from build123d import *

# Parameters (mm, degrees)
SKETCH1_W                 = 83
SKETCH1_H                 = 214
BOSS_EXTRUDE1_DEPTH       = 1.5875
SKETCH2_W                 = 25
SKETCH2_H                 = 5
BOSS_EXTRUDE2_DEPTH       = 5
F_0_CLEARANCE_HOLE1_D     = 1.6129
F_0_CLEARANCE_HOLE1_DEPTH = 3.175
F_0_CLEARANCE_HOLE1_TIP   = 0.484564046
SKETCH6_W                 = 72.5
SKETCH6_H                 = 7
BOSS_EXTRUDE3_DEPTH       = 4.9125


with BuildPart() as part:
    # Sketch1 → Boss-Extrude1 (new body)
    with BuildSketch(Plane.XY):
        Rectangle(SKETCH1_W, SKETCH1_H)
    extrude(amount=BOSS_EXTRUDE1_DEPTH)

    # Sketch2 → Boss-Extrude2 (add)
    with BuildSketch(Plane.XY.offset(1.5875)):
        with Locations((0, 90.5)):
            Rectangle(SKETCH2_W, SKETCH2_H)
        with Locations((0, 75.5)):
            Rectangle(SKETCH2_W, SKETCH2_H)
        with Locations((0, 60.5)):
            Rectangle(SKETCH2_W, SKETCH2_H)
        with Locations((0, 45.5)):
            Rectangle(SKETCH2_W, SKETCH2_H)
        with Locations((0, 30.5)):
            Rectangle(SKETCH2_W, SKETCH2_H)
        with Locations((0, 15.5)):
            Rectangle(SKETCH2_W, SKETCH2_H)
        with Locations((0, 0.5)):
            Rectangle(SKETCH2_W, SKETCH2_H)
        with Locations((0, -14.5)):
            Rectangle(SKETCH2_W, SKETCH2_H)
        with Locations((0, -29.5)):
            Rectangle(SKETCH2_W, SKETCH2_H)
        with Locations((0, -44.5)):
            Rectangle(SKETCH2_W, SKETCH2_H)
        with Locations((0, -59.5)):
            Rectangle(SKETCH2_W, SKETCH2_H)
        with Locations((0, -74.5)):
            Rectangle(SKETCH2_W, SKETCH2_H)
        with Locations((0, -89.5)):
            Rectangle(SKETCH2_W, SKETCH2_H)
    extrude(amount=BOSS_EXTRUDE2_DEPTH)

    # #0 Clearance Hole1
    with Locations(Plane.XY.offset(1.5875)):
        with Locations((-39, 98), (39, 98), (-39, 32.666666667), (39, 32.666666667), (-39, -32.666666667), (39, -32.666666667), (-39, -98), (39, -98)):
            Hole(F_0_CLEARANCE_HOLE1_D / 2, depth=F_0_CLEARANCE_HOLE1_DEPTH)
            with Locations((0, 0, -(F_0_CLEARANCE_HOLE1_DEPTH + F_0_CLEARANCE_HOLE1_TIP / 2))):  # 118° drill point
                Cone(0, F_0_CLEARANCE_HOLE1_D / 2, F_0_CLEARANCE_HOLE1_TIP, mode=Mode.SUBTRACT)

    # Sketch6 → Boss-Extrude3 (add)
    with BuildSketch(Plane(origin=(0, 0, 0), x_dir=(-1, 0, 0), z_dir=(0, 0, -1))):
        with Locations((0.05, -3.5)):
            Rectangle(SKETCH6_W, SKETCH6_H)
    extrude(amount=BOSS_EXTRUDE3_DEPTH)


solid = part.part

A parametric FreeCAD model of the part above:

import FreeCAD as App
import Part
import Sketcher
Q = App.Units.Quantity


def add_polygon(sketch, points):
    """Adds a closed chain of lines whose ends are joined by coincident constraints."""
    first, n = sketch.GeometryCount, len(points)
    for a, b in zip(points, points[1:] + points[:1]):
        sketch.addGeometry(Part.LineSegment(App.Vector(*a, 0), App.Vector(*b, 0)), False)
    for i in range(n):
        sketch.addConstraint(Sketcher.Constraint("Coincident", first + i, 2, first + (i + 1) % n, 1))

doc = App.newDocument("Part")
params = doc.addObject("Spreadsheet::Sheet", "Params")
for row, (alias, value) in enumerate([
    ("sketch1_width", "83 mm"),
    ("sketch1_height", "214 mm"),
    ("pad1_length", "1.5875 mm"),
    ("sketch2_width", "25 mm"),
    ("sketch2_height", "5 mm"),
    ("pad2_length", "5 mm"),
    ("hole_diameter", "1.6129 mm"),
    ("hole_depth", "3.175 mm"),
    ("sketch4_height", "7 mm"),
    ("sketch4_width", "72.5 mm"),
    ("pad3_length", "4.9125 mm"),
], start=1):
    params.set(f"A{row}", alias)
    params.set(f"B{row}", "=" + value)
    params.setAlias(f"B{row}", alias)

body = doc.addObject("PartDesign::Body", "Body")

sketch1 = body.newObject("Sketcher::SketchObject", "Sketch")
sketch1.AttachmentSupport = (doc.getObject("XY_Plane"), [""])
sketch1.MapMode = "FlatFace"
add_polygon(sketch1, [(-42, 107), (-42, -107), (42, -107), (42, 107)])
sketch1.addConstraint(Sketcher.Constraint("Vertical", 0))
sketch1.addConstraint(Sketcher.Constraint("Horizontal", 1))
sketch1.addConstraint(Sketcher.Constraint("Vertical", 2))
sketch1.addConstraint(Sketcher.Constraint("Horizontal", 3))
sketch1.addConstraint(Sketcher.Constraint("Symmetric", 0, 2, 2, 2, -1, 1))
sketch1.addConstraint(Sketcher.Constraint("DistanceX", 1, 1, 1, 2, Q("83 mm")))
sketch1.addConstraint(Sketcher.Constraint("DistanceY", 0, 2, 0, 1, Q("214 mm")))
sketch1.setExpression("Constraints[9]", "Params.sketch1_width")
sketch1.setExpression("Constraints[10]", "Params.sketch1_height")
pad1 = body.newObject("PartDesign::Pad", "Pad")
pad1.Profile = sketch1
pad1.setExpression("Length", "Params.pad1_length")

sketch2 = body.newObject("Sketcher::SketchObject", "Sketch001")
sketch2.AttachmentSupport = (doc.getObject("XY_Plane"), [""])
sketch2.MapMode = "FlatFace"
sketch2.AttachmentOffset = App.Placement(App.Vector(0, 0, 1.5875), App.Rotation())
add_polygon(sketch2, [(-12, 93), (-12, 88), (12, 88), (12, 93)])
add_polygon(sketch2, [(-12, 78), (-12, 73), (12, 73), (12, 78)])
add_polygon(sketch2, [(-12, 63), (-12, 58), (12, 58), (12, 63)])
add_polygon(sketch2, [(-12, 48), (-12, 43), (12, 43), (12, 48)])
add_polygon(sketch2, [(-12, 33), (-12, 28), (12, 28), (12, 33)])
add_polygon(sketch2, [(-12, 18), (-12, 13), (12, 13), (12, 18)])
add_polygon(sketch2, [(-12, 3), (-12, -2), (12, -2), (12, 3)])
add_polygon(sketch2, [(-12, -12), (-12, -17), (12, -17), (12, -12)])
add_polygon(sketch2, [(-12, -27), (-12, -32), (12, -32), (12, -27)])
add_polygon(sketch2, [(-12, -42), (-12, -47), (12, -47), (12, -42)])
add_polygon(sketch2, [(-12, -57), (-12, -62), (12, -62), (12, -57)])
add_polygon(sketch2, [(-12, -72), (-12, -77), (12, -77), (12, -72)])
add_polygon(sketch2, [(-12, -87), (-12, -92), (12, -92), (12, -87)])
sketch2.addConstraint(Sketcher.Constraint("Vertical", 0))
sketch2.addConstraint(Sketcher.Constraint("Horizontal", 1))
sketch2.addConstraint(Sketcher.Constraint("Vertical", 2))
sketch2.addConstraint(Sketcher.Constraint("Horizontal", 3))
sketch2.addConstraint(Sketcher.Constraint("Vertical", 4))
sketch2.addConstraint(Sketcher.Constraint("Horizontal", 5))
sketch2.addConstraint(Sketcher.Constraint("Vertical", 6))
sketch2.addConstraint(Sketcher.Constraint("Horizontal", 7))
sketch2.addConstraint(Sketcher.Constraint("Vertical", 8))
sketch2.addConstraint(Sketcher.Constraint("Horizontal", 9))
sketch2.addConstraint(Sketcher.Constraint("Vertical", 10))
sketch2.addConstraint(Sketcher.Constraint("Horizontal", 11))
sketch2.addConstraint(Sketcher.Constraint("Vertical", 12))
sketch2.addConstraint(Sketcher.Constraint("Horizontal", 13))
sketch2.addConstraint(Sketcher.Constraint("Vertical", 14))
sketch2.addConstraint(Sketcher.Constraint("Horizontal", 15))
sketch2.addConstraint(Sketcher.Constraint("Vertical", 16))
sketch2.addConstraint(Sketcher.Constraint("Horizontal", 17))
sketch2.addConstraint(Sketcher.Constraint("Vertical", 18))
sketch2.addConstraint(Sketcher.Constraint("Horizontal", 19))
sketch2.addConstraint(Sketcher.Constraint("Vertical", 20))
sketch2.addConstraint(Sketcher.Constraint("Horizontal", 21))
sketch2.addConstraint(Sketcher.Constraint("Vertical", 22))
sketch2.addConstraint(Sketcher.Constraint("Horizontal", 23))
sketch2.addConstraint(Sketcher.Constraint("Vertical", 24))
sketch2.addConstraint(Sketcher.Constraint("Horizontal", 25))
sketch2.addConstraint(Sketcher.Constraint("Vertical", 26))
sketch2.addConstraint(Sketcher.Constraint("Horizontal", 27))
sketch2.addConstraint(Sketcher.Constraint("Vertical", 28))
sketch2.addConstraint(Sketcher.Constraint("Horizontal", 29))
sketch2.addConstraint(Sketcher.Constraint("Vertical", 30))
sketch2.addConstraint(Sketcher.Constraint("Horizontal", 31))
sketch2.addConstraint(Sketcher.Constraint("Vertical", 32))
sketch2.addConstraint(Sketcher.Constraint("Horizontal", 33))
sketch2.addConstraint(Sketcher.Constraint("Vertical", 34))
sketch2.addConstraint(Sketcher.Constraint("Horizontal", 35))
sketch2.addConstraint(Sketcher.Constraint("Vertical", 36))
sketch2.addConstraint(Sketcher.Constraint("Horizontal", 37))
sketch2.addConstraint(Sketcher.Constraint("Vertical", 38))
sketch2.addConstraint(Sketcher.Constraint("Horizontal", 39))
sketch2.addConstraint(Sketcher.Constraint("Vertical", 40))
sketch2.addConstraint(Sketcher.Constraint("Horizontal", 41))
sketch2.addConstraint(Sketcher.Constraint("Vertical", 42))
sketch2.addConstraint(Sketcher.Constraint("Horizontal", 43))
sketch2.addConstraint(Sketcher.Constraint("Vertical", 44))
sketch2.addConstraint(Sketcher.Constraint("Horizontal", 45))
sketch2.addConstraint(Sketcher.Constraint("Vertical", 46))
sketch2.addConstraint(Sketcher.Constraint("Horizontal", 47))
sketch2.addConstraint(Sketcher.Constraint("Vertical", 48))
sketch2.addConstraint(Sketcher.Constraint("Horizontal", 49))
sketch2.addConstraint(Sketcher.Constraint("Vertical", 50))
sketch2.addConstraint(Sketcher.Constraint("Horizontal", 51))
sketch2.addConstraint(Sketcher.Constraint("Vertical", 3, 2, 4, 2))
sketch2.addConstraint(Sketcher.Constraint("Vertical", 2, 2, 5, 2))
sketch2.addConstraint(Sketcher.Constraint("Vertical", 7, 2, 8, 2))
sketch2.addConstraint(Sketcher.Constraint("Vertical", 6, 2, 9, 2))
sketch2.addConstraint(Sketcher.Constraint("Vertical", 11, 2, 12, 2))
sketch2.addConstraint(Sketcher.Constraint("Vertical", 10, 2, 13, 2))
sketch2.addConstraint(Sketcher.Constraint("Vertical", 15, 2, 16, 2))
sketch2.addConstraint(Sketcher.Constraint("Vertical", 14, 2, 17, 2))
sketch2.addConstraint(Sketcher.Constraint("Vertical", 19, 2, 20, 2))
sketch2.addConstraint(Sketcher.Constraint("Vertical", 18, 2, 21, 2))
sketch2.addConstraint(Sketcher.Constraint("Vertical", 23, 2, 24, 2))
sketch2.addConstraint(Sketcher.Constraint("Vertical", 22, 2, 25, 2))
sketch2.addConstraint(Sketcher.Constraint("Vertical", 27, 2, 28, 2))
sketch2.addConstraint(Sketcher.Constraint("Vertical", 26, 2, 29, 2))
sketch2.addConstraint(Sketcher.Constraint("Vertical", 31, 2, 32, 2))
sketch2.addConstraint(Sketcher.Constraint("Vertical", 30, 2, 33, 2))
sketch2.addConstraint(Sketcher.Constraint("Vertical", 35, 2, 36, 2))
sketch2.addConstraint(Sketcher.Constraint("Vertical", 34, 2, 37, 2))
sketch2.addConstraint(Sketcher.Constraint("Vertical", 39, 2, 40, 2))
sketch2.addConstraint(Sketcher.Constraint("Vertical", 38, 2, 41, 2))
sketch2.addConstraint(Sketcher.Constraint("Vertical", 43, 2, 44, 2))
sketch2.addConstraint(Sketcher.Constraint("Vertical", 42, 2, 45, 2))
sketch2.addConstraint(Sketcher.Constraint("Vertical", 47, 2, 48, 2))
sketch2.addConstraint(Sketcher.Constraint("Vertical", 46, 2, 49, 2))
sketch2.addConstraint(Sketcher.Constraint("Equal", 2, 4))
sketch2.addConstraint(Sketcher.Constraint("Equal", 6, 8))
sketch2.addConstraint(Sketcher.Constraint("Equal", 10, 12))
sketch2.addConstraint(Sketcher.Constraint("Equal", 14, 16))
sketch2.addConstraint(Sketcher.Constraint("Equal", 18, 20))
sketch2.addConstraint(Sketcher.Constraint("Equal", 22, 24))
sketch2.addConstraint(Sketcher.Constraint("Equal", 26, 28))
sketch2.addConstraint(Sketcher.Constraint("Equal", 30, 32))
sketch2.addConstraint(Sketcher.Constraint("Equal", 34, 36))
sketch2.addConstraint(Sketcher.Constraint("Equal", 38, 40))
sketch2.addConstraint(Sketcher.Constraint("Equal", 42, 44))
sketch2.addConstraint(Sketcher.Constraint("Equal", 46, 48))
sketch2.addConstraint(Sketcher.Constraint("DistanceX", 1, 1, 1, 2, Q("25 mm")))
sketch2.addConstraint(Sketcher.Constraint("DistanceY", 0, 2, 0, 1, Q("5 mm")))
sketch2.addConstraint(Sketcher.Constraint("DistanceY", -1, 1, 0, 2, Q("88 mm")))
sketch2.addConstraint(Sketcher.Constraint("DistanceY", -1, 1, 4, 2, Q("73 mm")))
sketch2.addConstraint(Sketcher.Constraint("DistanceY", -1, 1, 8, 2, Q("58 mm")))
sketch2.addConstraint(Sketcher.Constraint("DistanceY", -1, 1, 12, 2, Q("43 mm")))
sketch2.addConstraint(Sketcher.Constraint("DistanceY", -1, 1, 16, 2, Q("28 mm")))
sketch2.addConstraint(Sketcher.Constraint("DistanceY", -1, 1, 20, 2, Q("13 mm")))
sketch2.addConstraint(Sketcher.Constraint("DistanceY", 24, 2, -1, 1, Q("2 mm")))
sketch2.addConstraint(Sketcher.Constraint("DistanceY", 28, 2, -1, 1, Q("17 mm")))
sketch2.addConstraint(Sketcher.Constraint("DistanceY", 32, 2, -1, 1, Q("32 mm")))
sketch2.addConstraint(Sketcher.Constraint("DistanceY", 36, 2, -1, 1, Q("47 mm")))
sketch2.addConstraint(Sketcher.Constraint("DistanceY", 40, 2, -1, 1, Q("62 mm")))
sketch2.addConstraint(Sketcher.Constraint("DistanceY", 44, 2, -1, 1, Q("77 mm")))
sketch2.addConstraint(Sketcher.Constraint("DistanceY", 48, 2, -1, 1, Q("92 mm")))
sketch2.addConstraint(Sketcher.Constraint("DistanceX", 0, 2, -1, 1, Q("12.5 mm")))
sketch2.setExpression("Constraints[140]", "Params.sketch2_width")
sketch2.setExpression("Constraints[141]", "Params.sketch2_height")
pad2 = body.newObject("PartDesign::Pad", "Pad001")
pad2.Profile = sketch2
pad2.setExpression("Length", "Params.pad2_length")

sketch3 = body.newObject("Sketcher::SketchObject", "Sketch002")
sketch3.AttachmentSupport = (doc.getObject("XY_Plane"), [""])
sketch3.MapMode = "FlatFace"
sketch3.AttachmentOffset = App.Placement(App.Vector(0, 0, 1.5875), App.Rotation())
sketch3.addGeometry(Part.Circle(App.Vector(-39, 98, 0), App.Vector(0, 0, 1), 0.8), False)
sketch3.addGeometry(Part.Circle(App.Vector(39, 98, 0), App.Vector(0, 0, 1), 0.8), False)
sketch3.addGeometry(Part.Circle(App.Vector(-39, 32.7, 0), App.Vector(0, 0, 1), 0.8), False)
sketch3.addGeometry(Part.Circle(App.Vector(39, 32.7, 0), App.Vector(0, 0, 1), 0.8), False)
sketch3.addGeometry(Part.Circle(App.Vector(-39, -32.7, 0), App.Vector(0, 0, 1), 0.8), False)
sketch3.addGeometry(Part.Circle(App.Vector(39, -32.7, 0), App.Vector(0, 0, 1), 0.8), False)
sketch3.addGeometry(Part.Circle(App.Vector(-39, -98, 0), App.Vector(0, 0, 1), 0.8), False)
sketch3.addGeometry(Part.Circle(App.Vector(39, -98, 0), App.Vector(0, 0, 1), 0.8), False)
sketch3.addConstraint(Sketcher.Constraint("Equal", 0, 1))
sketch3.addConstraint(Sketcher.Constraint("Equal", 1, 2))
sketch3.addConstraint(Sketcher.Constraint("Equal", 2, 3))
sketch3.addConstraint(Sketcher.Constraint("Equal", 3, 4))
sketch3.addConstraint(Sketcher.Constraint("Equal", 4, 5))
sketch3.addConstraint(Sketcher.Constraint("Equal", 5, 6))
sketch3.addConstraint(Sketcher.Constraint("Equal", 6, 7))
sketch3.addConstraint(Sketcher.Constraint("Symmetric", 3, 3, 4, 3, -1, 1))
sketch3.addConstraint(Sketcher.Constraint("Symmetric", 2, 3, 5, 3, -1, 1))
sketch3.addConstraint(Sketcher.Constraint("Symmetric", 1, 3, 6, 3, -1, 1))
sketch3.addConstraint(Sketcher.Constraint("Symmetric", 0, 3, 7, 3, -1, 1))
sketch3.addConstraint(Sketcher.Constraint("Symmetric", 0, 3, 1, 3, -2))
sketch3.addConstraint(Sketcher.Constraint("Symmetric", 2, 3, 3, 3, -2))
sketch3.addConstraint(Sketcher.Constraint("Vertical", 0, 3, 2, 3))
sketch3.addConstraint(Sketcher.Constraint("DistanceX", 0, 3, -1, 1, Q("39 mm")))
sketch3.addConstraint(Sketcher.Constraint("DistanceY", -1, 1, 0, 3, Q("98 mm")))
sketch3.addConstraint(Sketcher.Constraint("Diameter", 0, Q("1.6129 mm")))
sketch3.addConstraint(Sketcher.Constraint("DistanceY", -1, 1, 2, 3, Q("32.666667 mm")))
doc.recompute()
hole = body.newObject("PartDesign::Hole", "Hole")
hole.Profile = sketch3
hole.ThreadType = "None"
hole.setExpression("Diameter", "Params.hole_diameter")
hole.DepthType = "Dimension"
hole.setExpression("Depth", "Params.hole_depth")
hole.DrillPoint = "Angled"
hole.DrillPointAngle = 118

sketch4 = body.newObject("Sketcher::SketchObject", "Sketch003")
sketch4.AttachmentSupport = (doc.getObject("XY_Plane"), [""])
sketch4.MapMode = "FlatFace"
add_polygon(sketch4, [(36, 0), (36, -7), (-36, -7), (-36, 0)])
sketch4.addConstraint(Sketcher.Constraint("Vertical", 0))
sketch4.addConstraint(Sketcher.Constraint("Horizontal", 1))
sketch4.addConstraint(Sketcher.Constraint("Vertical", 2))
sketch4.addConstraint(Sketcher.Constraint("Horizontal", 3))
sketch4.addConstraint(Sketcher.Constraint("PointOnObject", 2, 2, -1))
sketch4.addConstraint(Sketcher.Constraint("DistanceY", 0, 2, 0, 1, Q("7 mm")))
sketch4.addConstraint(Sketcher.Constraint("DistanceX", 1, 2, 1, 1, Q("72.5 mm")))
sketch4.addConstraint(Sketcher.Constraint("DistanceX", -1, 1, 0, 2, Q("36.2 mm")))
sketch4.setExpression("Constraints[9]", "Params.sketch4_height")
sketch4.setExpression("Constraints[10]", "Params.sketch4_width")
pad3 = body.newObject("PartDesign::Pad", "Pad002")
pad3.Profile = sketch4
pad3.setExpression("Length", "Params.pad3_length")
pad3.Reversed = True

doc.recompute()
